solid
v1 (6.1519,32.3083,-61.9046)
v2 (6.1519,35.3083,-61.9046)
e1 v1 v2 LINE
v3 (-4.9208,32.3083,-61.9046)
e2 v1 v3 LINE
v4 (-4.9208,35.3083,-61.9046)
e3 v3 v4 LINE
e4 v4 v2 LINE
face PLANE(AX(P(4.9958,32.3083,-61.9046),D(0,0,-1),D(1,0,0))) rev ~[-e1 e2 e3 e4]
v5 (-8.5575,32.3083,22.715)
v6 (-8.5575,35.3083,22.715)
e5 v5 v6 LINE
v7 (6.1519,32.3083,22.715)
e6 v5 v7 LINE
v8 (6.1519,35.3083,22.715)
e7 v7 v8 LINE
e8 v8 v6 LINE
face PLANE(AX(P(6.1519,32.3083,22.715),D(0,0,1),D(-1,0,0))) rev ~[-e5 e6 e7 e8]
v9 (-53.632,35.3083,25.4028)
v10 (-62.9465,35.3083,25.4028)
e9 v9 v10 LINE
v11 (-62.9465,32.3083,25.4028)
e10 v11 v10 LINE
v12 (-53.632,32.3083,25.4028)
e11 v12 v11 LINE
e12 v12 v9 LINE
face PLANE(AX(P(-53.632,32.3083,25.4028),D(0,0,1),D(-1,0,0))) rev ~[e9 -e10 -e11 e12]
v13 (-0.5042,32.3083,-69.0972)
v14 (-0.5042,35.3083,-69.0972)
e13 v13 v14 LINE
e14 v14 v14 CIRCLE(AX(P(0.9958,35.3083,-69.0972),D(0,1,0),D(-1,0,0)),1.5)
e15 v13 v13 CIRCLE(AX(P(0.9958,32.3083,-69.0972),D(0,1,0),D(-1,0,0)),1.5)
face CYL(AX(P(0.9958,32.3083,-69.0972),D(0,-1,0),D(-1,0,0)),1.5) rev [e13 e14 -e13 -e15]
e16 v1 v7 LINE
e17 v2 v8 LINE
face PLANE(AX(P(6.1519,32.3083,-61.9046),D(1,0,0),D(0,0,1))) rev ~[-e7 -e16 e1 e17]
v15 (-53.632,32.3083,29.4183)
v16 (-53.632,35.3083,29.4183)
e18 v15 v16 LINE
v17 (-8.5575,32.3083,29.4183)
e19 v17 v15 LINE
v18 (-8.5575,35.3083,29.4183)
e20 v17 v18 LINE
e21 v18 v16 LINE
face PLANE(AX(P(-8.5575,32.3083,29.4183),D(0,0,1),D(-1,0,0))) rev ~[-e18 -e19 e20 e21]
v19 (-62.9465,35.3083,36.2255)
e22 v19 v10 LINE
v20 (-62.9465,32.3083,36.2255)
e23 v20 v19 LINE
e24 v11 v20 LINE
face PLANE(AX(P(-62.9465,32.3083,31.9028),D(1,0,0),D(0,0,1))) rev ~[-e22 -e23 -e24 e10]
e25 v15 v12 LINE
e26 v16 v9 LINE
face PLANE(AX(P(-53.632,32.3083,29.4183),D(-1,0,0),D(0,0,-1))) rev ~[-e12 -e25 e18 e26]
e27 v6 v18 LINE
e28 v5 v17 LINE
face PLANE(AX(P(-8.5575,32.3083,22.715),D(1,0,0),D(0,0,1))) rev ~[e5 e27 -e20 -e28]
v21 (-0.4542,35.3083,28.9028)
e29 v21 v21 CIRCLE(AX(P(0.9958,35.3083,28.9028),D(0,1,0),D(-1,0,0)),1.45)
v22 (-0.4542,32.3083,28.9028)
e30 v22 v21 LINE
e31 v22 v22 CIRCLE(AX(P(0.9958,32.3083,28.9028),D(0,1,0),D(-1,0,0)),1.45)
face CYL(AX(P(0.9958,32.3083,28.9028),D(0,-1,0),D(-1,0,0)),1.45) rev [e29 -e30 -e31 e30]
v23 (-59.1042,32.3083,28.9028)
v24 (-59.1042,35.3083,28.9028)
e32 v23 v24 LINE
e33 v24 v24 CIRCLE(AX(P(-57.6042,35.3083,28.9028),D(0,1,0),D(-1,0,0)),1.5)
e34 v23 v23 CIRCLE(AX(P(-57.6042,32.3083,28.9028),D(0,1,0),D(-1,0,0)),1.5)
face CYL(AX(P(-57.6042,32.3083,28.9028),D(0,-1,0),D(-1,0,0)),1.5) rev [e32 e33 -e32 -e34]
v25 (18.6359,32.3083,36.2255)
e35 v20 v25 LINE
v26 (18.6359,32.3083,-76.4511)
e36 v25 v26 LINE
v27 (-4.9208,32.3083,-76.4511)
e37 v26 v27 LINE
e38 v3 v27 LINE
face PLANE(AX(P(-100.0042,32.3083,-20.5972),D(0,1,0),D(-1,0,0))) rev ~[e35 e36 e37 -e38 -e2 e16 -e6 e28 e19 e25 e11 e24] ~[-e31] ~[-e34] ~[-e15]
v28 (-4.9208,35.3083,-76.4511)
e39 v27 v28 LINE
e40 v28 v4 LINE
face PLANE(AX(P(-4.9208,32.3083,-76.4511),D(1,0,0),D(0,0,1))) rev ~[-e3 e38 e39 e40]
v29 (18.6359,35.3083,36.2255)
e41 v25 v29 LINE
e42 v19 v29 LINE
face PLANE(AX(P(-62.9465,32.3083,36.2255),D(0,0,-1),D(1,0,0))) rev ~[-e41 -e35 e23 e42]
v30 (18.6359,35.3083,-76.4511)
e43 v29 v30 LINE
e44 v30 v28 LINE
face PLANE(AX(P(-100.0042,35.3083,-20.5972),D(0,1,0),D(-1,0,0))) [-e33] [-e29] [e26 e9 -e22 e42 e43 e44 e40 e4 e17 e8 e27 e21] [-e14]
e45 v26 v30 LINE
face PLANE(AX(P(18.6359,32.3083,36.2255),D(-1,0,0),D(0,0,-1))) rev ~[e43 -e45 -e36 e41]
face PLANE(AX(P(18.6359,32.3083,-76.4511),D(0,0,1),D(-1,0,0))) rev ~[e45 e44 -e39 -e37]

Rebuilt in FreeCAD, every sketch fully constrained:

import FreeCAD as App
import Part
import Sketcher
Q = App.Units.Quantity


def add_polygon(sketch, points):
    """Adds a closed chain of lines whose ends are joined by coincident constraints."""
    first, n = sketch.GeometryCount, len(points)
    for a, b in zip(points, points[1:] + points[:1]):
        sketch.addGeometry(Part.LineSegment(App.Vector(*a, 0), App.Vector(*b, 0)), False)
    for i in range(n):
        sketch.addConstraint(Sketcher.Constraint("Coincident", first + i, 2, first + (i + 1) % n, 1))

doc = App.newDocument("Part")
body = doc.addObject("PartDesign::Body", "Body")

# Sketch on XZ plane
sketch1 = body.newObject("Sketcher::SketchObject", "Sketch")
sketch1.AttachmentSupport = (doc.getObject("XZ_Plane"), [""])
sketch1.MapMode = "FlatFace"
sketch1.AttachmentOffset = App.Placement(App.Vector(0, 0, -32.3083), App.Rotation())
add_polygon(sketch1, [(-62.9465, 36.2255), (18.6359, 36.2255), (18.6359, -76.4511), (-4.9208, -76.4511), (-4.9208, -61.9046), (6.1519, -61.9046), (6.1519, 22.715), (-8.5575, 22.715), (-8.5575, 29.4183), (-53.632, 29.4183), (-53.632, 25.4028), (-62.9465, 25.4028)])  # lines 0-11
sketch1.addGeometry(Part.Circle(App.Vector(0.9958, 28.9028, 0), App.Vector(0, 0, 1), 1.45), False)  # 12
sketch1.addGeometry(Part.Circle(App.Vector(-57.6042, 28.9028, 0), App.Vector(0, 0, 1), 1.5), False)  # 13
sketch1.addGeometry(Part.Circle(App.Vector(0.9958, -69.0972, 0), App.Vector(0, 0, 1), 1.5), False)  # 14
sketch1.addConstraint([
    Sketcher.Constraint("Horizontal", 0),
    Sketcher.Constraint("Vertical", 1),
    Sketcher.Constraint("Horizontal", 2),
    Sketcher.Constraint("Vertical", 3),
    Sketcher.Constraint("Horizontal", 4),
    Sketcher.Constraint("Vertical", 5),
    Sketcher.Constraint("Horizontal", 6),
    Sketcher.Constraint("Vertical", 7),
    Sketcher.Constraint("Horizontal", 8),
    Sketcher.Constraint("Vertical", 9),
    Sketcher.Constraint("Horizontal", 10),
    Sketcher.Constraint("Vertical", 11),
    Sketcher.Constraint("Equal", 13, 14),
    Sketcher.Constraint("Horizontal", 12, 3, 13, 3),
    Sketcher.Constraint("Vertical", 12, 3, 14, 3),
    Sketcher.Constraint("Diameter", 12, Q("2.9 mm")),
    Sketcher.Constraint("Diameter", 13, Q("3 mm")),
    Sketcher.Constraint("DistanceY", 14, 3, 12, 3, Q("98 mm")),
    Sketcher.Constraint("DistanceX", 13, 3, 12, 3, Q("58.6 mm")),
    Sketcher.Constraint("DistanceY", 9, 2, 13, 3, Q("3.5 mm")),
    Sketcher.Constraint("DistanceX", 12, 3, 0, 2, Q("17.64 mm")),
    Sketcher.Constraint("DistanceY", 3, 2, 0, 2, Q("98.13 mm")),
    Sketcher.Constraint("DistanceX", 0, 1, 0, 2, Q("81.5824 mm")),
    Sketcher.Constraint("DistanceX", 2, 2, 2, 1, Q("23.5567 mm")),
    Sketcher.Constraint("DistanceX", 4, 1, 4, 2, Q("11.0727 mm")),
    Sketcher.Constraint("DistanceX", 6, 2, 6, 1, Q("14.7094 mm")),
    Sketcher.Constraint("DistanceX", 8, 2, 8, 1, Q("45.0745 mm")),
    Sketcher.Constraint("DistanceY", 1, 2, 1, 1, Q("112.6766 mm")),
    Sketcher.Constraint("DistanceY", 5, 1, 5, 2, Q("84.6196 mm")),
    Sketcher.Constraint("DistanceY", 7, 1, 7, 2, Q("6.7033 mm")),
    Sketcher.Constraint("DistanceY", 9, 2, 9, 1, Q("4.0155 mm")),
    Sketcher.Constraint("DistanceX", -1, 1, 0, 2, Q("18.636 mm")),
    Sketcher.Constraint("DistanceY", 1, 2, -1, 1, Q("76.451 mm")),
])
pad1 = body.newObject("PartDesign::Pad", "Pad")
pad1.Profile = sketch1
pad1.Length = 3
pad1.Reversed = True

doc.recompute()
